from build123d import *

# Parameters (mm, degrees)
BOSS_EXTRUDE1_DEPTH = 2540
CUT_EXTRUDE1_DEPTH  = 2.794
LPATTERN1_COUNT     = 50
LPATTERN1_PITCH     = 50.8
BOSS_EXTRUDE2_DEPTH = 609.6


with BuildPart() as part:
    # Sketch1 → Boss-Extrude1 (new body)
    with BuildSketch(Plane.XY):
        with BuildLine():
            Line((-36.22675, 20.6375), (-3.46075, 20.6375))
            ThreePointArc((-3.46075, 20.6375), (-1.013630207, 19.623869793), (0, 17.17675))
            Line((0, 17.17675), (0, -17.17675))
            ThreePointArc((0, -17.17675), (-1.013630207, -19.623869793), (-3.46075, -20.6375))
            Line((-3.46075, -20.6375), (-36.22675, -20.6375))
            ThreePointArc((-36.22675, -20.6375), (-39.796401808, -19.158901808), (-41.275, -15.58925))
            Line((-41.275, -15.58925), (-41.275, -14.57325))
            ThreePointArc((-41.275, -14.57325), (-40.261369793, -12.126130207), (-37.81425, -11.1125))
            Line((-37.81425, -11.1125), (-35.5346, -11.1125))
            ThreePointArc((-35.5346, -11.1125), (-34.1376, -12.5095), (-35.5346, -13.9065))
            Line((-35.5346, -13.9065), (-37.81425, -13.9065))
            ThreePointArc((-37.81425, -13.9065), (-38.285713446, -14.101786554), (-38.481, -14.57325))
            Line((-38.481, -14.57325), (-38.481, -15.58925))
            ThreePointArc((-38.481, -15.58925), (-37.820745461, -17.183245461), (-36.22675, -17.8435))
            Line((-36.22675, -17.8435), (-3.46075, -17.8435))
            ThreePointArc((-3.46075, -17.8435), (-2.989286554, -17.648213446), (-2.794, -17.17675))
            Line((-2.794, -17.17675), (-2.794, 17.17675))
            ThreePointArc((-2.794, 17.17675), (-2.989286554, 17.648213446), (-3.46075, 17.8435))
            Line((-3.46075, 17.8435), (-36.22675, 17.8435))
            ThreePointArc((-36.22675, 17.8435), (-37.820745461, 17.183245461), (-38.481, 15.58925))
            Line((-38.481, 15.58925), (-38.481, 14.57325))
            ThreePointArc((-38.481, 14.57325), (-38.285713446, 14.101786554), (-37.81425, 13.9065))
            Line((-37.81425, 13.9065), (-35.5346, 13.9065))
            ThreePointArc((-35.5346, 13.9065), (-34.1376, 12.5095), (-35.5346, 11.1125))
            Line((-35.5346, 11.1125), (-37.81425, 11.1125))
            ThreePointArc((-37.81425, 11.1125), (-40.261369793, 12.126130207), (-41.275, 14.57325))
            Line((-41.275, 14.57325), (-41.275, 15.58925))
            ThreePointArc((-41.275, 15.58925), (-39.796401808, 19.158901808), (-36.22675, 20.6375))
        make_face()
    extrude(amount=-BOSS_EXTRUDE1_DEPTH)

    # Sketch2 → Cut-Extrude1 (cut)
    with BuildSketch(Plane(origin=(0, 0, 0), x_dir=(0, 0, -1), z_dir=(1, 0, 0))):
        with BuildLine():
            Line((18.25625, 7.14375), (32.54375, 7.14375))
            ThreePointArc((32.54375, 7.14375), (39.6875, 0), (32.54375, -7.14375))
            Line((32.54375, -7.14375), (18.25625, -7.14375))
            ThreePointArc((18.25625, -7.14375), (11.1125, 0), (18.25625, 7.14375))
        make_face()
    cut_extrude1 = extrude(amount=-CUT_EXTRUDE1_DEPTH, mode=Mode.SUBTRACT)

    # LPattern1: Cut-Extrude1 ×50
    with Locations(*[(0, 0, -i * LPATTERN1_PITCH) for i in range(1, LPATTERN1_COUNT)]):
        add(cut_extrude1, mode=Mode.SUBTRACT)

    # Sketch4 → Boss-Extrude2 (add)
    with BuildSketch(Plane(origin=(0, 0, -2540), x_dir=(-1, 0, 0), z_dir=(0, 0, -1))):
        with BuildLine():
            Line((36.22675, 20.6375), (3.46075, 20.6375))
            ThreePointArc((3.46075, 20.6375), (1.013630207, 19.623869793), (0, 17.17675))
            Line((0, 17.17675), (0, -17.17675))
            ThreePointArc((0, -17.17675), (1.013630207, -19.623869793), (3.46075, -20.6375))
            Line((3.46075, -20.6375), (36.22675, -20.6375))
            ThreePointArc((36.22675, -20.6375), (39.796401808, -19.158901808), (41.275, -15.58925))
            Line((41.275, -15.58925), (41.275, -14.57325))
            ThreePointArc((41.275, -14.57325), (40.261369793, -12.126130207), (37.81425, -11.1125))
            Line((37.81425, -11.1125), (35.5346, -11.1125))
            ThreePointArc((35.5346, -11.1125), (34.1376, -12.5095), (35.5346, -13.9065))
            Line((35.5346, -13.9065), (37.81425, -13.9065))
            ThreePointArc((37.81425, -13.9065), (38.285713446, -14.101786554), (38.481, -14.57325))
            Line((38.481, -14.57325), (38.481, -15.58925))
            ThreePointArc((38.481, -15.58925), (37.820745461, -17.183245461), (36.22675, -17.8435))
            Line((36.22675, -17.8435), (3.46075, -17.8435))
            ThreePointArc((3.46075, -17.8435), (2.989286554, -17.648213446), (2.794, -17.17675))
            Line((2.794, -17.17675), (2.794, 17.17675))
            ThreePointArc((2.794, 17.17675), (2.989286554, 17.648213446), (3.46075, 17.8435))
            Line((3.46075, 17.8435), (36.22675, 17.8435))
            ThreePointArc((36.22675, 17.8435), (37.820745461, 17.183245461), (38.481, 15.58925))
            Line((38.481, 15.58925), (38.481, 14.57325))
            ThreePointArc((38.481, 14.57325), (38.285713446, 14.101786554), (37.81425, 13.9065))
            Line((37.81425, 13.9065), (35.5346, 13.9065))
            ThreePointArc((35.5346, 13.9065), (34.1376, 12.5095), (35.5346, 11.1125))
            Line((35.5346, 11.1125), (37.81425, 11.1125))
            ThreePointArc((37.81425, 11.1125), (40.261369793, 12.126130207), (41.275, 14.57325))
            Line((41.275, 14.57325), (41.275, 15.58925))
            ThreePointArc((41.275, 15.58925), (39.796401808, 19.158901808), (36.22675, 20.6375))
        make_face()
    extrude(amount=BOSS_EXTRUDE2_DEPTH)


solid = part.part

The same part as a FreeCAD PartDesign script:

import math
import FreeCAD as App
import Part
import Sketcher
from FreeCAD import Vector
Q = App.Units.Quantity

doc = App.newDocument("Part")
body = doc.addObject("PartDesign::Body", "Body")

# Sketch on XY plane
sketch1 = body.newObject("Sketcher::SketchObject", "Sketch")
sketch1.AttachmentSupport = (doc.getObject("XY_Plane"), [""])
sketch1.MapMode = "FlatFace"
sketch1.addGeometry([
    Part.LineSegment(Vector(-3.5, 20.6, 0), Vector(-36.2, 20.6, 0)),  # 0
    Part.ArcOfCircle(Part.Circle(Vector(-36.2, 15.6, 0), Vector(0, 0, 1), 5), math.radians(90), math.radians(180)),  # 1
    Part.LineSegment(Vector(-41.3, 15.6, 0), Vector(-41.3, 14.6, 0)),  # 2
    Part.ArcOfCircle(Part.Circle(Vector(-37.8, 14.6, 0), Vector(0, 0, 1), 3.5), math.radians(180), math.radians(270)),  # 3
    Part.LineSegment(Vector(-37.8, 11.1, 0), Vector(-35.5, 11.1, 0)),  # 4
    Part.ArcOfCircle(Part.Circle(Vector(-35.5, 12.5, 0), Vector(0, 0, 1), 1.4), math.radians(-90), math.radians(90)),  # 5
    Part.LineSegment(Vector(-35.5, 13.9, 0), Vector(-37.8, 13.9, 0)),  # 6
    Part.ArcOfCircle(Part.Circle(Vector(-37.8, 14.6, 0), Vector(0, 0, 1), 0.7), math.radians(-180), math.radians(-90)),  # 7
    Part.LineSegment(Vector(-38.5, 14.6, 0), Vector(-38.5, 15.6, 0)),  # 8
    Part.ArcOfCircle(Part.Circle(Vector(-36.2, 15.6, 0), Vector(0, 0, 1), 2.3), math.radians(90), math.radians(180)),  # 9
    Part.LineSegment(Vector(-36.2, 17.8, 0), Vector(-3.5, 17.8, 0)),  # 10
    Part.ArcOfCircle(Part.Circle(Vector(-3.5, 17.2, 0), Vector(0, 0, 1), 0.7), math.radians(0), math.radians(90)),  # 11
    Part.LineSegment(Vector(-2.8, 17.2, 0), Vector(-2.8, -17.2, 0)),  # 12
    Part.ArcOfCircle(Part.Circle(Vector(-3.5, -17.2, 0), Vector(0, 0, 1), 0.7), math.radians(-90), math.radians(0)),  # 13
    Part.LineSegment(Vector(-3.5, -17.8, 0), Vector(-36.2, -17.8, 0)),  # 14
    Part.ArcOfCircle(Part.Circle(Vector(-36.2, -15.6, 0), Vector(0, 0, 1), 2.3), math.radians(-180), math.radians(-90)),  # 15
    Part.LineSegment(Vector(-38.5, -15.6, 0), Vector(-38.5, -14.6, 0)),  # 16
    Part.ArcOfCircle(Part.Circle(Vector(-37.8, -14.6, 0), Vector(0, 0, 1), 0.7), math.radians(90), math.radians(180)),  # 17
    Part.LineSegment(Vector(-37.8, -13.9, 0), Vector(-35.5, -13.9, 0)),  # 18
    Part.ArcOfCircle(Part.Circle(Vector(-35.5, -12.5, 0), Vector(0, 0, 1), 1.4), math.radians(-90), math.radians(90)),  # 19
    Part.LineSegment(Vector(-35.5, -11.1, 0), Vector(-37.8, -11.1, 0)),  # 20
    Part.ArcOfCircle(Part.Circle(Vector(-37.8, -14.6, 0), Vector(0, 0, 1), 3.5), math.radians(90), math.radians(180)),  # 21
    Part.LineSegment(Vector(-41.3, -14.6, 0), Vector(-41.3, -15.6, 0)),  # 22
    Part.ArcOfCircle(Part.Circle(Vector(-36.2, -15.6, 0), Vector(0, 0, 1), 5), math.radians(180), math.radians(270)),  # 23
    Part.LineSegment(Vector(-36.2, -20.6, 0), Vector(-3.5, -20.6, 0)),  # 24
    Part.ArcOfCircle(Part.Circle(Vector(-3.5, -17.2, 0), Vector(0, 0, 1), 3.5), math.radians(-90), math.radians(0)),  # 25
    Part.LineSegment(Vector(0, -17.2, 0), Vector(0, 17.2, 0)),  # 26
    Part.ArcOfCircle(Part.Circle(Vector(-3.5, 17.2, 0), Vector(0, 0, 1), 3.5), math.radians(0), math.radians(90)),  # 27
], False)
sketch1.addConstraint([
    Sketcher.Constraint("Tangent", 0, 2, 1, 1),
    Sketcher.Constraint("Tangent", 1, 2, 2, 1),
    Sketcher.Constraint("Tangent", 2, 2, 3, 1),
    Sketcher.Constraint("Tangent", 3, 2, 4, 1),
    Sketcher.Constraint("Tangent", 4, 2, 5, 1),
    Sketcher.Constraint("Tangent", 5, 2, 6, 1),
    Sketcher.Constraint("Tangent", 6, 2, 7, 2),
    Sketcher.Constraint("Tangent", 7, 1, 8, 1),
    Sketcher.Constraint("Tangent", 8, 2, 9, 2),
    Sketcher.Constraint("Tangent", 9, 1, 10, 1),
    Sketcher.Constraint("Tangent", 10, 2, 11, 2),
    Sketcher.Constraint("Tangent", 11, 1, 12, 1),
    Sketcher.Constraint("Tangent", 12, 2, 13, 2),
    Sketcher.Constraint("Tangent", 13, 1, 14, 1),
    Sketcher.Constraint("Tangent", 14, 2, 15, 2),
    Sketcher.Constraint("Tangent", 15, 1, 16, 1),
    Sketcher.Constraint("Tangent", 16, 2, 17, 2),
    Sketcher.Constraint("Tangent", 17, 1, 18, 1),
    Sketcher.Constraint("Tangent", 18, 2, 19, 1),
    Sketcher.Constraint("Tangent", 19, 2, 20, 1),
    Sketcher.Constraint("Tangent", 20, 2, 21, 1),
    Sketcher.Constraint("Tangent", 21, 2, 22, 1),
    Sketcher.Constraint("Tangent", 22, 2, 23, 1),
    Sketcher.Constraint("Tangent", 23, 2, 24, 1),
    Sketcher.Constraint("Tangent", 24, 2, 25, 1),
    Sketcher.Constraint("Tangent", 25, 2, 26, 1),
    Sketcher.Constraint("Tangent", 26, 2, 27, 1),
    Sketcher.Constraint("Tangent", 27, 2, 0, 1),
    Sketcher.Constraint("Horizontal", 0),
    Sketcher.Constraint("Vertical", 2),
    Sketcher.Constraint("Horizontal", 4),
    Sketcher.Constraint("Horizontal", 6),
    Sketcher.Constraint("Vertical", 8),
    Sketcher.Constraint("Horizontal", 10),
    Sketcher.Constraint("Vertical", 12),
    Sketcher.Constraint("Horizontal", 14),
    Sketcher.Constraint("Vertical", 16),
    Sketcher.Constraint("Horizontal", 18),
    Sketcher.Constraint("Horizontal", 20),
    Sketcher.Constraint("Vertical", 22),
    Sketcher.Constraint("Horizontal", 24),
    Sketcher.Constraint("Vertical", 26),
    Sketcher.Constraint("Coincident", 7, 3, 3, 3),
    Sketcher.Constraint("Coincident", 9, 3, 1, 3),
    Sketcher.Constraint("Coincident", 21, 3, 17, 3),
    Sketcher.Constraint("Coincident", 23, 3, 15, 3),
    Sketcher.Constraint("Coincident", 25, 3, 13, 3),
    Sketcher.Constraint("Coincident", 27, 3, 11, 3),
    Sketcher.Constraint("Equal", 7, 11),
    Sketcher.Constraint("Equal", 11, 13),
    Sketcher.Constraint("Equal", 9, 15),
    Sketcher.Constraint("Equal", 13, 17),
    Sketcher.Constraint("Symmetric", 25, 2, 26, 2, -1, 1),
    Sketcher.Constraint("Symmetric", 3, 3, 17, 3, -1),
    Sketcher.Constraint("Vertical", 5, 3, 19, 3),
    Sketcher.Constraint("Radius", 5, Q("0.055 in")),
    Sketcher.Constraint("DistanceX", 0, 2, 0, 1, Q("1.29 in")),
    Sketcher.Constraint("DistanceY", 2, 2, 2, 1, Q("0.04 in")),
    Sketcher.Constraint("DistanceY", 13, 3, 9, 3, Q("1.29 in")),
    Sketcher.Constraint("DistanceY", 5, 3, 0, 2, Q("0.32 in")),
    Sketcher.Constraint("DistanceY", 12, 2, 12, 1, Q("1.3525 in")),
    Sketcher.Constraint("DistanceX", 5, 3, -1, 1, Q("1.399 in")),
])
pad1 = body.newObject("PartDesign::Pad", "Pad")
pad1.Profile = sketch1
pad1.Length = Q("100 in")
pad1.Reversed = True

# Sketch on YZ plane
sketch2 = body.newObject("Sketcher::SketchObject", "Sketch001")
sketch2.AttachmentSupport = (doc.getObject("YZ_Plane"), [""])
sketch2.MapMode = "FlatFace"
sketch2.addGeometry([
    Part.LineSegment(Vector(7, -33, 0), Vector(7, -18, 0)),
    Part.ArcOfCircle(Part.Circle(Vector(0, -18, 0), Vector(0, 0, 1), 7), math.radians(0), math.radians(180)),
    Part.LineSegment(Vector(-7, -18, 0), Vector(-7, -33, 0)),
    Part.ArcOfCircle(Part.Circle(Vector(0, -33, 0), Vector(0, 0, 1), 7), math.radians(180), math.radians(360)),
], False)
sketch2.addConstraint([
    Sketcher.Constraint("Tangent", 0, 2, 1, 1),
    Sketcher.Constraint("Tangent", 1, 2, 2, 1),
    Sketcher.Constraint("Tangent", 2, 2, 3, 1),
    Sketcher.Constraint("Tangent", 3, 2, 0, 1),
    Sketcher.Constraint("Vertical", 0),
    Sketcher.Constraint("Vertical", 2),
    Sketcher.Constraint("PointOnObject", 1, 3, -2),
    Sketcher.Constraint("Radius", 1, Q("0.28125 in")),
    Sketcher.Constraint("DistanceY", 0, 1, 0, 2, Q("0.5625 in")),
    Sketcher.Constraint("DistanceY", 1, 3, -1, 1, Q("0.71875 in")),
])
pocket1 = body.newObject("PartDesign::Pocket", "Pocket")
pocket1.Profile = sketch2
pocket1.Length = Q("0.11 in")
doc.recompute()

linearpattern = body.newObject("PartDesign::LinearPattern", "LinearPattern")
linearpattern.Originals = [pocket1]
linearpattern.Direction = (doc.getObject("Z_Axis"), [""])
linearpattern.Mode = "offset"
linearpattern.Offset = Q("2 in")
linearpattern.Occurrences = 50
linearpattern.Reversed = True
body.Tip = linearpattern

# Sketch on XY plane
sketch3 = body.newObject("Sketcher::SketchObject", "Sketch002")
sketch3.AttachmentSupport = (doc.getObject("XY_Plane"), [""])
sketch3.MapMode = "FlatFace"
sketch3.AttachmentOffset = App.Placement(Vector(0, 0, -100 * 25.4), App.Rotation())
sketch3.addGeometry([
    Part.LineSegment(Vector(-36.2, 20.6, 0), Vector(-3.5, 20.6, 0)),  # 0
    Part.ArcOfCircle(Part.Circle(Vector(-3.5, 17.2, 0), Vector(0, 0, 1), 3.5), math.radians(0), math.radians(90)),  # 1
    Part.LineSegment(Vector(0, 17.2, 0), Vector(0, -17.2, 0)),  # 2
    Part.ArcOfCircle(Part.Circle(Vector(-3.5, -17.2, 0), Vector(0, 0, 1), 3.5), math.radians(-90), math.radians(0)),  # 3
    Part.LineSegment(Vector(-3.5, -20.6, 0), Vector(-36.2, -20.6, 0)),  # 4
    Part.ArcOfCircle(Part.Circle(Vector(-36.2, -15.6, 0), Vector(0, 0, 1), 5), math.radians(180), math.radians(270)),  # 5
    Part.LineSegment(Vector(-41.3, -15.6, 0), Vector(-41.3, -14.6, 0)),  # 6
    Part.ArcOfCircle(Part.Circle(Vector(-37.8, -14.6, 0), Vector(0, 0, 1), 3.5), math.radians(90), math.radians(180)),  # 7
    Part.LineSegment(Vector(-37.8, -11.1, 0), Vector(-35.5, -11.1, 0)),  # 8
    Part.ArcOfCircle(Part.Circle(Vector(-35.5, -12.5, 0), Vector(0, 0, 1), 1.4), math.radians(-90), math.radians(90)),  # 9
    Part.LineSegment(Vector(-35.5, -13.9, 0), Vector(-37.8, -13.9, 0)),  # 10
    Part.ArcOfCircle(Part.Circle(Vector(-37.8, -14.6, 0), Vector(0, 0, 1), 0.7), math.radians(90), math.radians(180)),  # 11
    Part.LineSegment(Vector(-38.5, -14.6, 0), Vector(-38.5, -15.6, 0)),  # 12
    Part.ArcOfCircle(Part.Circle(Vector(-36.2, -15.6, 0), Vector(0, 0, 1), 2.3), math.radians(-180), math.radians(-90)),  # 13
    Part.LineSegment(Vector(-36.2, -17.8, 0), Vector(-3.5, -17.8, 0)),  # 14
    Part.ArcOfCircle(Part.Circle(Vector(-3.5, -17.2, 0), Vector(0, 0, 1), 0.7), math.radians(-90), math.radians(0)),  # 15
    Part.LineSegment(Vector(-2.8, -17.2, 0), Vector(-2.8, 17.2, 0)),  # 16
    Part.ArcOfCircle(Part.Circle(Vector(-3.5, 17.2, 0), Vector(0, 0, 1), 0.7), math.radians(0), math.radians(90)),  # 17
    Part.LineSegment(Vector(-3.5, 17.8, 0), Vector(-36.2, 17.8, 0)),  # 18
    Part.ArcOfCircle(Part.Circle(Vector(-36.2, 15.6, 0), Vector(0, 0, 1), 2.3), math.radians(90), math.radians(180)),  # 19
    Part.LineSegment(Vector(-38.5, 15.6, 0), Vector(-38.5, 14.6, 0)),  # 20
    Part.ArcOfCircle(Part.Circle(Vector(-37.8, 14.6, 0), Vector(0, 0, 1), 0.7), math.radians(-180), math.radians(-90)),  # 21
    Part.LineSegment(Vector(-37.8, 13.9, 0), Vector(-35.5, 13.9, 0)),  # 22
    Part.ArcOfCircle(Part.Circle(Vector(-35.5, 12.5, 0), Vector(0, 0, 1), 1.4), math.radians(-90), math.radians(90)),  # 23
    Part.LineSegment(Vector(-35.5, 11.1, 0), Vector(-37.8, 11.1, 0)),  # 24
    Part.ArcOfCircle(Part.Circle(Vector(-37.8, 14.6, 0), Vector(0, 0, 1), 3.5), math.radians(180), math.radians(270)),  # 25
    Part.LineSegment(Vector(-41.3, 14.6, 0), Vector(-41.3, 15.6, 0)),  # 26
    Part.ArcOfCircle(Part.Circle(Vector(-36.2, 15.6, 0), Vector(0, 0, 1), 5), math.radians(90), math.radians(180)),  # 27
], False)
sketch3.addConstraint([
    Sketcher.Constraint("Tangent", 0, 2, 1, 2),
    Sketcher.Constraint("Tangent", 1, 1, 2, 1),
    Sketcher.Constraint("Tangent", 2, 2, 3, 2),
    Sketcher.Constraint("Tangent", 3, 1, 4, 1),
    Sketcher.Constraint("Tangent", 4, 2, 5, 2),
    Sketcher.Constraint("Tangent", 5, 1, 6, 1),
    Sketcher.Constraint("Tangent", 6, 2, 7, 2),
    Sketcher.Constraint("Tangent", 7, 1, 8, 1),
    Sketcher.Constraint("Tangent", 8, 2, 9, 2),
    Sketcher.Constraint("Tangent", 9, 1, 10, 1),
    Sketcher.Constraint("Tangent", 10, 2, 11, 1),
    Sketcher.Constraint("Tangent", 11, 2, 12, 1),
    Sketcher.Constraint("Tangent", 12, 2, 13, 1),
    Sketcher.Constraint("Tangent", 13, 2, 14, 1),
    Sketcher.Constraint("Tangent", 14, 2, 15, 1),
    Sketcher.Constraint("Tangent", 15, 2, 16, 1),
    Sketcher.Constraint("Tangent", 16, 2, 17, 1),
    Sketcher.Constraint("Tangent", 17, 2, 18, 1),
    Sketcher.Constraint("Tangent", 18, 2, 19, 1),
    Sketcher.Constraint("Tangent", 19, 2, 20, 1),
    Sketcher.Constraint("Tangent", 20, 2, 21, 1),
    Sketcher.Constraint("Tangent", 21, 2, 22, 1),
    Sketcher.Constraint("Tangent", 22, 2, 23, 2),
    Sketcher.Constraint("Tangent", 23, 1, 24, 1),
    Sketcher.Constraint("Tangent", 24, 2, 25, 2),
    Sketcher.Constraint("Tangent", 25, 1, 26, 1),
    Sketcher.Constraint("Tangent", 26, 2, 27, 2),
    Sketcher.Constraint("Tangent", 27, 1, 0, 1),
    Sketcher.Constraint("Horizontal", 0),
    Sketcher.Constraint("Vertical", 2),
    Sketcher.Constraint("Horizontal", 4),
    Sketcher.Constraint("Vertical", 6),
    Sketcher.Constraint("Horizontal", 8),
    Sketcher.Constraint("Horizontal", 10),
    Sketcher.Constraint("Vertical", 12),
    Sketcher.Constraint("Horizontal", 14),
    Sketcher.Constraint("Vertical", 16),
    Sketcher.Constraint("Horizontal", 18),
    Sketcher.Constraint("Vertical", 20),
    Sketcher.Constraint("Horizontal", 22),
    Sketcher.Constraint("Horizontal", 24),
    Sketcher.Constraint("Vertical", 26),
    Sketcher.Constraint("Coincident", 11, 3, 7, 3),
    Sketcher.Constraint("Coincident", 13, 3, 5, 3),
    Sketcher.Constraint("Coincident", 15, 3, 3, 3),
    Sketcher.Constraint("Coincident", 17, 3, 1, 3),
    Sketcher.Constraint("Coincident", 25, 3, 21, 3),
    Sketcher.Constraint("Coincident", 27, 3, 19, 3),
    Sketcher.Constraint("Equal", 1, 3),
    Sketcher.Constraint("Equal", 3, 7),
    Sketcher.Constraint("Equal", 13, 19),
    Sketcher.Constraint("Equal", 17, 21),
    Sketcher.Constraint("Symmetric", 1, 1, 2, 2, -1, 1),
    Sketcher.Constraint("Symmetric", 7, 3, 21, 3, -1),
    Sketcher.Constraint("Vertical", 9, 3, 23, 3),
    Sketcher.Constraint("Radius", 9, Q("0.055 in")),
    Sketcher.Constraint("DistanceX", 0, 1, 0, 2, Q("1.29 in")),
    Sketcher.Constraint("DistanceY", 6, 1, 6, 2, Q("0.04 in")),
    Sketcher.Constraint("DistanceY", 5, 3, 1, 3, Q("1.29 in")),
    Sketcher.Constraint("DistanceY", 23, 3, 0, 2, Q("0.32 in")),
    Sketcher.Constraint("DistanceY", 2, 2, 2, 1, Q("1.3525 in")),
    Sketcher.Constraint("DistanceX", 9, 3, -1, 1, Q("1.399 in")),
])
pad2 = body.newObject("PartDesign::Pad", "Pad001")
pad2.Profile = sketch3
pad2.Length = Q("24 in")
pad2.Reversed = True

doc.recompute()
